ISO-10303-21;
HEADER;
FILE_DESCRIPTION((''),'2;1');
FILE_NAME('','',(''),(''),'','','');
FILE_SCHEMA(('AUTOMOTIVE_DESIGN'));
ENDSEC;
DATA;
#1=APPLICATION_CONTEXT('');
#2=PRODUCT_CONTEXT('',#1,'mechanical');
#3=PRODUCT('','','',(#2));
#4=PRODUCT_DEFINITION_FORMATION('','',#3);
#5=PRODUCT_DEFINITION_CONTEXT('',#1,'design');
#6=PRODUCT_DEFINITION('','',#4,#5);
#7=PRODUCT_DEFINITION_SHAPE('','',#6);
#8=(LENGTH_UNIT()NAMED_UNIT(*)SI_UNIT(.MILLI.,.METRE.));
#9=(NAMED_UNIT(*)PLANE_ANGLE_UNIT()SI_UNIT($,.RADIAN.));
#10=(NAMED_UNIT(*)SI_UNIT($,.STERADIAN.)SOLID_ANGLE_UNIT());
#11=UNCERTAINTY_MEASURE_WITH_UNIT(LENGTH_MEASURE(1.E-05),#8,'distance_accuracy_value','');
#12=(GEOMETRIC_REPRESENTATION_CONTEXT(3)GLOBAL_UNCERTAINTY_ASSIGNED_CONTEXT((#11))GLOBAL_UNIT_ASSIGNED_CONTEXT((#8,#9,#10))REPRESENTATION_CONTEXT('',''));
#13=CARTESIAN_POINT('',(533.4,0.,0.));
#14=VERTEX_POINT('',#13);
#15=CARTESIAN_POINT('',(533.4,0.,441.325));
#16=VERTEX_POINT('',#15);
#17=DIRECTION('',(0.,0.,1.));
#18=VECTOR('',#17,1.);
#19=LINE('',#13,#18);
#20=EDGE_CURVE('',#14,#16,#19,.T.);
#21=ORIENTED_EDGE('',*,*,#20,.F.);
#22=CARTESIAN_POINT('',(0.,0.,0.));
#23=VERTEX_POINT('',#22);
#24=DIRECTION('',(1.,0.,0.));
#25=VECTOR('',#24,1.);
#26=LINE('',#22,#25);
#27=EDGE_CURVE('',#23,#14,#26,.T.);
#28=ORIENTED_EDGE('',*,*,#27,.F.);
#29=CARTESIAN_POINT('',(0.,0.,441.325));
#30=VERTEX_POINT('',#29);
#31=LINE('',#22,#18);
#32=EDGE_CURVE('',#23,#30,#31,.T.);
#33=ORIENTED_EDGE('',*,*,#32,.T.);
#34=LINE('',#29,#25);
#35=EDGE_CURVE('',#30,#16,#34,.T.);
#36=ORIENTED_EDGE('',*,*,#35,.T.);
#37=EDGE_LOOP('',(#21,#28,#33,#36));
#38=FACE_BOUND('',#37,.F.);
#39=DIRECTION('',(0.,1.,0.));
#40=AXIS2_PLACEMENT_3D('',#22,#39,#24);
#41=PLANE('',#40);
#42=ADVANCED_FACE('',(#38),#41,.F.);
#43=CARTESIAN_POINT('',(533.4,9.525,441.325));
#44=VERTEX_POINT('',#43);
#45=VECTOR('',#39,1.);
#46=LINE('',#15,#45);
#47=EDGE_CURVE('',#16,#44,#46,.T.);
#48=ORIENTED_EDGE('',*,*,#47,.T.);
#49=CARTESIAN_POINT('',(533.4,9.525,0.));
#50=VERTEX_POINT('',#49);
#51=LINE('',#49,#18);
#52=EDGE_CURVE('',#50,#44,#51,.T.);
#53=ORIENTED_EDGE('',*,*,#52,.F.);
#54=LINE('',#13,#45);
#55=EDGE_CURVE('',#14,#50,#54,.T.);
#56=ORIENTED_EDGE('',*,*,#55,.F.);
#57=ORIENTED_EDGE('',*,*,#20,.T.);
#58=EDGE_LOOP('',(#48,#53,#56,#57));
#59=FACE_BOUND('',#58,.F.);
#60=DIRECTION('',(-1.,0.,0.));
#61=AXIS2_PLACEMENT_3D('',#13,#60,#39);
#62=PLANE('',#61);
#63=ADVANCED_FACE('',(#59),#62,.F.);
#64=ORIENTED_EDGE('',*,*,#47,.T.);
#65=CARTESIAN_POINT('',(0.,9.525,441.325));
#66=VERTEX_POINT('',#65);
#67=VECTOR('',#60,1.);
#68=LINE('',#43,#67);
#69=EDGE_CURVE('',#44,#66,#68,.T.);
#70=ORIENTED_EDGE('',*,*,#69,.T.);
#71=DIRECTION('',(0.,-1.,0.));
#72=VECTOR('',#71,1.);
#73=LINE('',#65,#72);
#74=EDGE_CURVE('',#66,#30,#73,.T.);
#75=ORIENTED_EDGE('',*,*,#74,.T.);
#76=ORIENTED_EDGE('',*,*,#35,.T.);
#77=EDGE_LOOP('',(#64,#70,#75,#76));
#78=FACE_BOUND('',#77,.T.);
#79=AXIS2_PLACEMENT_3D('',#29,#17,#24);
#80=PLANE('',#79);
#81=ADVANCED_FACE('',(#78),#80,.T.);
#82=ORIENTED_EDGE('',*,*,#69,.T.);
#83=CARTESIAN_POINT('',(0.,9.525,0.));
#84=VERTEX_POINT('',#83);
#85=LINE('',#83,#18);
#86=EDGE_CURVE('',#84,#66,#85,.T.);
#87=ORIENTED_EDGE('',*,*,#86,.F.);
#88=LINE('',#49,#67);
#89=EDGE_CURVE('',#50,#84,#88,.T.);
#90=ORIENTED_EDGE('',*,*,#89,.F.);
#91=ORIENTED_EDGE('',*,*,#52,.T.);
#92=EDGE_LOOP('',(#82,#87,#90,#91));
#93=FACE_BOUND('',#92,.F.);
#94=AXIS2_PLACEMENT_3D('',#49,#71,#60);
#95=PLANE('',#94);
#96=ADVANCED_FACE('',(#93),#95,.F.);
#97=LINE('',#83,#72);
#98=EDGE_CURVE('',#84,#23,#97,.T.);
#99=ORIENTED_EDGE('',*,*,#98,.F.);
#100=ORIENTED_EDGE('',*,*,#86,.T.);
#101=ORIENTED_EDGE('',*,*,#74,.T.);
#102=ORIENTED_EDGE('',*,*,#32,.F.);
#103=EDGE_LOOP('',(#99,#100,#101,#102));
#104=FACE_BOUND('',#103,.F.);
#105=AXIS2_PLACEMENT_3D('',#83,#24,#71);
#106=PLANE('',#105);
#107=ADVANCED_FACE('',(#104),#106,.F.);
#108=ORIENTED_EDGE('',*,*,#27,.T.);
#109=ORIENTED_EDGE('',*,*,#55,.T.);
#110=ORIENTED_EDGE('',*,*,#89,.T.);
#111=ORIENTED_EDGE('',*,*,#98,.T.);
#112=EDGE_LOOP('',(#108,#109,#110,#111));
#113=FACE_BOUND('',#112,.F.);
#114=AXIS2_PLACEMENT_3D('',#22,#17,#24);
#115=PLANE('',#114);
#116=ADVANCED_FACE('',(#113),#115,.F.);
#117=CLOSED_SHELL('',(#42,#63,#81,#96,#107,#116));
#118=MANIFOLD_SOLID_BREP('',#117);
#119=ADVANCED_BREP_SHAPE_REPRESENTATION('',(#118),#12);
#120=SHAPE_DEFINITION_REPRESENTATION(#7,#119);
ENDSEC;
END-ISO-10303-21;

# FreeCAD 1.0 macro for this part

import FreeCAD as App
import Part
import Sketcher
from FreeCAD import Vector
Q = App.Units.Quantity

doc = App.newDocument("Part")
params = doc.addObject("Spreadsheet::Sheet", "Params")
for row, (alias, value) in enumerate([
    ("sketch1_width", "21 in"),
    ("sketch1_height", "0.375 in"),
    ("pad1_length", "17.375 in"),
], start=1):
    params.set(f"A{row}", alias)
    params.set(f"B{row}", "=" + value)
    params.setAlias(f"B{row}", alias)

body = doc.addObject("PartDesign::Body", "Body")

# Sketch on XY plane
sketch1 = body.newObject("Sketcher::SketchObject", "Sketch")
sketch1.AttachmentSupport = (doc.getObject("XY_Plane"), [""])
sketch1.MapMode = "FlatFace"
sketch1.addGeometry(Part.LineSegment(Vector(0, 10, 0), Vector(0, 0, 0)), False)
sketch1.addGeometry(Part.LineSegment(Vector(0, 0, 0), Vector(533, 0, 0)), False)
sketch1.addGeometry(Part.LineSegment(Vector(533, 0, 0), Vector(533, 10, 0)), False)
sketch1.addGeometry(Part.LineSegment(Vector(533, 10, 0), Vector(0, 10, 0)), False)
sketch1.addConstraint(Sketcher.Constraint("Coincident", 0, 2, 1, 1))
sketch1.addConstraint(Sketcher.Constraint("Coincident", 1, 2, 2, 1))
sketch1.addConstraint(Sketcher.Constraint("Coincident", 2, 2, 3, 1))
sketch1.addConstraint(Sketcher.Constraint("Coincident", 3, 2, 0, 1))
sketch1.addConstraint(Sketcher.Constraint("Vertical", 0))
sketch1.addConstraint(Sketcher.Constraint("Horizontal", 1))
sketch1.addConstraint(Sketcher.Constraint("Vertical", 2))
sketch1.addConstraint(Sketcher.Constraint("Horizontal", 3))
sketch1.addConstraint(Sketcher.Constraint("Coincident", 0, 2, -1, 1))
sketch1.addConstraint(Sketcher.Constraint("DistanceX", 1, 1, 1, 2, Q("21 in")))
sketch1.addConstraint(Sketcher.Constraint("DistanceY", 0, 2, 0, 1, Q("0.375 in")))
sketch1.setExpression("Constraints[9]", "Params.sketch1_width")
sketch1.setExpression("Constraints[10]", "Params.sketch1_height")
pad1 = body.newObject("PartDesign::Pad", "Pad")
pad1.Profile = sketch1
pad1.setExpression("Length", "Params.pad1_length")

doc.recompute()
